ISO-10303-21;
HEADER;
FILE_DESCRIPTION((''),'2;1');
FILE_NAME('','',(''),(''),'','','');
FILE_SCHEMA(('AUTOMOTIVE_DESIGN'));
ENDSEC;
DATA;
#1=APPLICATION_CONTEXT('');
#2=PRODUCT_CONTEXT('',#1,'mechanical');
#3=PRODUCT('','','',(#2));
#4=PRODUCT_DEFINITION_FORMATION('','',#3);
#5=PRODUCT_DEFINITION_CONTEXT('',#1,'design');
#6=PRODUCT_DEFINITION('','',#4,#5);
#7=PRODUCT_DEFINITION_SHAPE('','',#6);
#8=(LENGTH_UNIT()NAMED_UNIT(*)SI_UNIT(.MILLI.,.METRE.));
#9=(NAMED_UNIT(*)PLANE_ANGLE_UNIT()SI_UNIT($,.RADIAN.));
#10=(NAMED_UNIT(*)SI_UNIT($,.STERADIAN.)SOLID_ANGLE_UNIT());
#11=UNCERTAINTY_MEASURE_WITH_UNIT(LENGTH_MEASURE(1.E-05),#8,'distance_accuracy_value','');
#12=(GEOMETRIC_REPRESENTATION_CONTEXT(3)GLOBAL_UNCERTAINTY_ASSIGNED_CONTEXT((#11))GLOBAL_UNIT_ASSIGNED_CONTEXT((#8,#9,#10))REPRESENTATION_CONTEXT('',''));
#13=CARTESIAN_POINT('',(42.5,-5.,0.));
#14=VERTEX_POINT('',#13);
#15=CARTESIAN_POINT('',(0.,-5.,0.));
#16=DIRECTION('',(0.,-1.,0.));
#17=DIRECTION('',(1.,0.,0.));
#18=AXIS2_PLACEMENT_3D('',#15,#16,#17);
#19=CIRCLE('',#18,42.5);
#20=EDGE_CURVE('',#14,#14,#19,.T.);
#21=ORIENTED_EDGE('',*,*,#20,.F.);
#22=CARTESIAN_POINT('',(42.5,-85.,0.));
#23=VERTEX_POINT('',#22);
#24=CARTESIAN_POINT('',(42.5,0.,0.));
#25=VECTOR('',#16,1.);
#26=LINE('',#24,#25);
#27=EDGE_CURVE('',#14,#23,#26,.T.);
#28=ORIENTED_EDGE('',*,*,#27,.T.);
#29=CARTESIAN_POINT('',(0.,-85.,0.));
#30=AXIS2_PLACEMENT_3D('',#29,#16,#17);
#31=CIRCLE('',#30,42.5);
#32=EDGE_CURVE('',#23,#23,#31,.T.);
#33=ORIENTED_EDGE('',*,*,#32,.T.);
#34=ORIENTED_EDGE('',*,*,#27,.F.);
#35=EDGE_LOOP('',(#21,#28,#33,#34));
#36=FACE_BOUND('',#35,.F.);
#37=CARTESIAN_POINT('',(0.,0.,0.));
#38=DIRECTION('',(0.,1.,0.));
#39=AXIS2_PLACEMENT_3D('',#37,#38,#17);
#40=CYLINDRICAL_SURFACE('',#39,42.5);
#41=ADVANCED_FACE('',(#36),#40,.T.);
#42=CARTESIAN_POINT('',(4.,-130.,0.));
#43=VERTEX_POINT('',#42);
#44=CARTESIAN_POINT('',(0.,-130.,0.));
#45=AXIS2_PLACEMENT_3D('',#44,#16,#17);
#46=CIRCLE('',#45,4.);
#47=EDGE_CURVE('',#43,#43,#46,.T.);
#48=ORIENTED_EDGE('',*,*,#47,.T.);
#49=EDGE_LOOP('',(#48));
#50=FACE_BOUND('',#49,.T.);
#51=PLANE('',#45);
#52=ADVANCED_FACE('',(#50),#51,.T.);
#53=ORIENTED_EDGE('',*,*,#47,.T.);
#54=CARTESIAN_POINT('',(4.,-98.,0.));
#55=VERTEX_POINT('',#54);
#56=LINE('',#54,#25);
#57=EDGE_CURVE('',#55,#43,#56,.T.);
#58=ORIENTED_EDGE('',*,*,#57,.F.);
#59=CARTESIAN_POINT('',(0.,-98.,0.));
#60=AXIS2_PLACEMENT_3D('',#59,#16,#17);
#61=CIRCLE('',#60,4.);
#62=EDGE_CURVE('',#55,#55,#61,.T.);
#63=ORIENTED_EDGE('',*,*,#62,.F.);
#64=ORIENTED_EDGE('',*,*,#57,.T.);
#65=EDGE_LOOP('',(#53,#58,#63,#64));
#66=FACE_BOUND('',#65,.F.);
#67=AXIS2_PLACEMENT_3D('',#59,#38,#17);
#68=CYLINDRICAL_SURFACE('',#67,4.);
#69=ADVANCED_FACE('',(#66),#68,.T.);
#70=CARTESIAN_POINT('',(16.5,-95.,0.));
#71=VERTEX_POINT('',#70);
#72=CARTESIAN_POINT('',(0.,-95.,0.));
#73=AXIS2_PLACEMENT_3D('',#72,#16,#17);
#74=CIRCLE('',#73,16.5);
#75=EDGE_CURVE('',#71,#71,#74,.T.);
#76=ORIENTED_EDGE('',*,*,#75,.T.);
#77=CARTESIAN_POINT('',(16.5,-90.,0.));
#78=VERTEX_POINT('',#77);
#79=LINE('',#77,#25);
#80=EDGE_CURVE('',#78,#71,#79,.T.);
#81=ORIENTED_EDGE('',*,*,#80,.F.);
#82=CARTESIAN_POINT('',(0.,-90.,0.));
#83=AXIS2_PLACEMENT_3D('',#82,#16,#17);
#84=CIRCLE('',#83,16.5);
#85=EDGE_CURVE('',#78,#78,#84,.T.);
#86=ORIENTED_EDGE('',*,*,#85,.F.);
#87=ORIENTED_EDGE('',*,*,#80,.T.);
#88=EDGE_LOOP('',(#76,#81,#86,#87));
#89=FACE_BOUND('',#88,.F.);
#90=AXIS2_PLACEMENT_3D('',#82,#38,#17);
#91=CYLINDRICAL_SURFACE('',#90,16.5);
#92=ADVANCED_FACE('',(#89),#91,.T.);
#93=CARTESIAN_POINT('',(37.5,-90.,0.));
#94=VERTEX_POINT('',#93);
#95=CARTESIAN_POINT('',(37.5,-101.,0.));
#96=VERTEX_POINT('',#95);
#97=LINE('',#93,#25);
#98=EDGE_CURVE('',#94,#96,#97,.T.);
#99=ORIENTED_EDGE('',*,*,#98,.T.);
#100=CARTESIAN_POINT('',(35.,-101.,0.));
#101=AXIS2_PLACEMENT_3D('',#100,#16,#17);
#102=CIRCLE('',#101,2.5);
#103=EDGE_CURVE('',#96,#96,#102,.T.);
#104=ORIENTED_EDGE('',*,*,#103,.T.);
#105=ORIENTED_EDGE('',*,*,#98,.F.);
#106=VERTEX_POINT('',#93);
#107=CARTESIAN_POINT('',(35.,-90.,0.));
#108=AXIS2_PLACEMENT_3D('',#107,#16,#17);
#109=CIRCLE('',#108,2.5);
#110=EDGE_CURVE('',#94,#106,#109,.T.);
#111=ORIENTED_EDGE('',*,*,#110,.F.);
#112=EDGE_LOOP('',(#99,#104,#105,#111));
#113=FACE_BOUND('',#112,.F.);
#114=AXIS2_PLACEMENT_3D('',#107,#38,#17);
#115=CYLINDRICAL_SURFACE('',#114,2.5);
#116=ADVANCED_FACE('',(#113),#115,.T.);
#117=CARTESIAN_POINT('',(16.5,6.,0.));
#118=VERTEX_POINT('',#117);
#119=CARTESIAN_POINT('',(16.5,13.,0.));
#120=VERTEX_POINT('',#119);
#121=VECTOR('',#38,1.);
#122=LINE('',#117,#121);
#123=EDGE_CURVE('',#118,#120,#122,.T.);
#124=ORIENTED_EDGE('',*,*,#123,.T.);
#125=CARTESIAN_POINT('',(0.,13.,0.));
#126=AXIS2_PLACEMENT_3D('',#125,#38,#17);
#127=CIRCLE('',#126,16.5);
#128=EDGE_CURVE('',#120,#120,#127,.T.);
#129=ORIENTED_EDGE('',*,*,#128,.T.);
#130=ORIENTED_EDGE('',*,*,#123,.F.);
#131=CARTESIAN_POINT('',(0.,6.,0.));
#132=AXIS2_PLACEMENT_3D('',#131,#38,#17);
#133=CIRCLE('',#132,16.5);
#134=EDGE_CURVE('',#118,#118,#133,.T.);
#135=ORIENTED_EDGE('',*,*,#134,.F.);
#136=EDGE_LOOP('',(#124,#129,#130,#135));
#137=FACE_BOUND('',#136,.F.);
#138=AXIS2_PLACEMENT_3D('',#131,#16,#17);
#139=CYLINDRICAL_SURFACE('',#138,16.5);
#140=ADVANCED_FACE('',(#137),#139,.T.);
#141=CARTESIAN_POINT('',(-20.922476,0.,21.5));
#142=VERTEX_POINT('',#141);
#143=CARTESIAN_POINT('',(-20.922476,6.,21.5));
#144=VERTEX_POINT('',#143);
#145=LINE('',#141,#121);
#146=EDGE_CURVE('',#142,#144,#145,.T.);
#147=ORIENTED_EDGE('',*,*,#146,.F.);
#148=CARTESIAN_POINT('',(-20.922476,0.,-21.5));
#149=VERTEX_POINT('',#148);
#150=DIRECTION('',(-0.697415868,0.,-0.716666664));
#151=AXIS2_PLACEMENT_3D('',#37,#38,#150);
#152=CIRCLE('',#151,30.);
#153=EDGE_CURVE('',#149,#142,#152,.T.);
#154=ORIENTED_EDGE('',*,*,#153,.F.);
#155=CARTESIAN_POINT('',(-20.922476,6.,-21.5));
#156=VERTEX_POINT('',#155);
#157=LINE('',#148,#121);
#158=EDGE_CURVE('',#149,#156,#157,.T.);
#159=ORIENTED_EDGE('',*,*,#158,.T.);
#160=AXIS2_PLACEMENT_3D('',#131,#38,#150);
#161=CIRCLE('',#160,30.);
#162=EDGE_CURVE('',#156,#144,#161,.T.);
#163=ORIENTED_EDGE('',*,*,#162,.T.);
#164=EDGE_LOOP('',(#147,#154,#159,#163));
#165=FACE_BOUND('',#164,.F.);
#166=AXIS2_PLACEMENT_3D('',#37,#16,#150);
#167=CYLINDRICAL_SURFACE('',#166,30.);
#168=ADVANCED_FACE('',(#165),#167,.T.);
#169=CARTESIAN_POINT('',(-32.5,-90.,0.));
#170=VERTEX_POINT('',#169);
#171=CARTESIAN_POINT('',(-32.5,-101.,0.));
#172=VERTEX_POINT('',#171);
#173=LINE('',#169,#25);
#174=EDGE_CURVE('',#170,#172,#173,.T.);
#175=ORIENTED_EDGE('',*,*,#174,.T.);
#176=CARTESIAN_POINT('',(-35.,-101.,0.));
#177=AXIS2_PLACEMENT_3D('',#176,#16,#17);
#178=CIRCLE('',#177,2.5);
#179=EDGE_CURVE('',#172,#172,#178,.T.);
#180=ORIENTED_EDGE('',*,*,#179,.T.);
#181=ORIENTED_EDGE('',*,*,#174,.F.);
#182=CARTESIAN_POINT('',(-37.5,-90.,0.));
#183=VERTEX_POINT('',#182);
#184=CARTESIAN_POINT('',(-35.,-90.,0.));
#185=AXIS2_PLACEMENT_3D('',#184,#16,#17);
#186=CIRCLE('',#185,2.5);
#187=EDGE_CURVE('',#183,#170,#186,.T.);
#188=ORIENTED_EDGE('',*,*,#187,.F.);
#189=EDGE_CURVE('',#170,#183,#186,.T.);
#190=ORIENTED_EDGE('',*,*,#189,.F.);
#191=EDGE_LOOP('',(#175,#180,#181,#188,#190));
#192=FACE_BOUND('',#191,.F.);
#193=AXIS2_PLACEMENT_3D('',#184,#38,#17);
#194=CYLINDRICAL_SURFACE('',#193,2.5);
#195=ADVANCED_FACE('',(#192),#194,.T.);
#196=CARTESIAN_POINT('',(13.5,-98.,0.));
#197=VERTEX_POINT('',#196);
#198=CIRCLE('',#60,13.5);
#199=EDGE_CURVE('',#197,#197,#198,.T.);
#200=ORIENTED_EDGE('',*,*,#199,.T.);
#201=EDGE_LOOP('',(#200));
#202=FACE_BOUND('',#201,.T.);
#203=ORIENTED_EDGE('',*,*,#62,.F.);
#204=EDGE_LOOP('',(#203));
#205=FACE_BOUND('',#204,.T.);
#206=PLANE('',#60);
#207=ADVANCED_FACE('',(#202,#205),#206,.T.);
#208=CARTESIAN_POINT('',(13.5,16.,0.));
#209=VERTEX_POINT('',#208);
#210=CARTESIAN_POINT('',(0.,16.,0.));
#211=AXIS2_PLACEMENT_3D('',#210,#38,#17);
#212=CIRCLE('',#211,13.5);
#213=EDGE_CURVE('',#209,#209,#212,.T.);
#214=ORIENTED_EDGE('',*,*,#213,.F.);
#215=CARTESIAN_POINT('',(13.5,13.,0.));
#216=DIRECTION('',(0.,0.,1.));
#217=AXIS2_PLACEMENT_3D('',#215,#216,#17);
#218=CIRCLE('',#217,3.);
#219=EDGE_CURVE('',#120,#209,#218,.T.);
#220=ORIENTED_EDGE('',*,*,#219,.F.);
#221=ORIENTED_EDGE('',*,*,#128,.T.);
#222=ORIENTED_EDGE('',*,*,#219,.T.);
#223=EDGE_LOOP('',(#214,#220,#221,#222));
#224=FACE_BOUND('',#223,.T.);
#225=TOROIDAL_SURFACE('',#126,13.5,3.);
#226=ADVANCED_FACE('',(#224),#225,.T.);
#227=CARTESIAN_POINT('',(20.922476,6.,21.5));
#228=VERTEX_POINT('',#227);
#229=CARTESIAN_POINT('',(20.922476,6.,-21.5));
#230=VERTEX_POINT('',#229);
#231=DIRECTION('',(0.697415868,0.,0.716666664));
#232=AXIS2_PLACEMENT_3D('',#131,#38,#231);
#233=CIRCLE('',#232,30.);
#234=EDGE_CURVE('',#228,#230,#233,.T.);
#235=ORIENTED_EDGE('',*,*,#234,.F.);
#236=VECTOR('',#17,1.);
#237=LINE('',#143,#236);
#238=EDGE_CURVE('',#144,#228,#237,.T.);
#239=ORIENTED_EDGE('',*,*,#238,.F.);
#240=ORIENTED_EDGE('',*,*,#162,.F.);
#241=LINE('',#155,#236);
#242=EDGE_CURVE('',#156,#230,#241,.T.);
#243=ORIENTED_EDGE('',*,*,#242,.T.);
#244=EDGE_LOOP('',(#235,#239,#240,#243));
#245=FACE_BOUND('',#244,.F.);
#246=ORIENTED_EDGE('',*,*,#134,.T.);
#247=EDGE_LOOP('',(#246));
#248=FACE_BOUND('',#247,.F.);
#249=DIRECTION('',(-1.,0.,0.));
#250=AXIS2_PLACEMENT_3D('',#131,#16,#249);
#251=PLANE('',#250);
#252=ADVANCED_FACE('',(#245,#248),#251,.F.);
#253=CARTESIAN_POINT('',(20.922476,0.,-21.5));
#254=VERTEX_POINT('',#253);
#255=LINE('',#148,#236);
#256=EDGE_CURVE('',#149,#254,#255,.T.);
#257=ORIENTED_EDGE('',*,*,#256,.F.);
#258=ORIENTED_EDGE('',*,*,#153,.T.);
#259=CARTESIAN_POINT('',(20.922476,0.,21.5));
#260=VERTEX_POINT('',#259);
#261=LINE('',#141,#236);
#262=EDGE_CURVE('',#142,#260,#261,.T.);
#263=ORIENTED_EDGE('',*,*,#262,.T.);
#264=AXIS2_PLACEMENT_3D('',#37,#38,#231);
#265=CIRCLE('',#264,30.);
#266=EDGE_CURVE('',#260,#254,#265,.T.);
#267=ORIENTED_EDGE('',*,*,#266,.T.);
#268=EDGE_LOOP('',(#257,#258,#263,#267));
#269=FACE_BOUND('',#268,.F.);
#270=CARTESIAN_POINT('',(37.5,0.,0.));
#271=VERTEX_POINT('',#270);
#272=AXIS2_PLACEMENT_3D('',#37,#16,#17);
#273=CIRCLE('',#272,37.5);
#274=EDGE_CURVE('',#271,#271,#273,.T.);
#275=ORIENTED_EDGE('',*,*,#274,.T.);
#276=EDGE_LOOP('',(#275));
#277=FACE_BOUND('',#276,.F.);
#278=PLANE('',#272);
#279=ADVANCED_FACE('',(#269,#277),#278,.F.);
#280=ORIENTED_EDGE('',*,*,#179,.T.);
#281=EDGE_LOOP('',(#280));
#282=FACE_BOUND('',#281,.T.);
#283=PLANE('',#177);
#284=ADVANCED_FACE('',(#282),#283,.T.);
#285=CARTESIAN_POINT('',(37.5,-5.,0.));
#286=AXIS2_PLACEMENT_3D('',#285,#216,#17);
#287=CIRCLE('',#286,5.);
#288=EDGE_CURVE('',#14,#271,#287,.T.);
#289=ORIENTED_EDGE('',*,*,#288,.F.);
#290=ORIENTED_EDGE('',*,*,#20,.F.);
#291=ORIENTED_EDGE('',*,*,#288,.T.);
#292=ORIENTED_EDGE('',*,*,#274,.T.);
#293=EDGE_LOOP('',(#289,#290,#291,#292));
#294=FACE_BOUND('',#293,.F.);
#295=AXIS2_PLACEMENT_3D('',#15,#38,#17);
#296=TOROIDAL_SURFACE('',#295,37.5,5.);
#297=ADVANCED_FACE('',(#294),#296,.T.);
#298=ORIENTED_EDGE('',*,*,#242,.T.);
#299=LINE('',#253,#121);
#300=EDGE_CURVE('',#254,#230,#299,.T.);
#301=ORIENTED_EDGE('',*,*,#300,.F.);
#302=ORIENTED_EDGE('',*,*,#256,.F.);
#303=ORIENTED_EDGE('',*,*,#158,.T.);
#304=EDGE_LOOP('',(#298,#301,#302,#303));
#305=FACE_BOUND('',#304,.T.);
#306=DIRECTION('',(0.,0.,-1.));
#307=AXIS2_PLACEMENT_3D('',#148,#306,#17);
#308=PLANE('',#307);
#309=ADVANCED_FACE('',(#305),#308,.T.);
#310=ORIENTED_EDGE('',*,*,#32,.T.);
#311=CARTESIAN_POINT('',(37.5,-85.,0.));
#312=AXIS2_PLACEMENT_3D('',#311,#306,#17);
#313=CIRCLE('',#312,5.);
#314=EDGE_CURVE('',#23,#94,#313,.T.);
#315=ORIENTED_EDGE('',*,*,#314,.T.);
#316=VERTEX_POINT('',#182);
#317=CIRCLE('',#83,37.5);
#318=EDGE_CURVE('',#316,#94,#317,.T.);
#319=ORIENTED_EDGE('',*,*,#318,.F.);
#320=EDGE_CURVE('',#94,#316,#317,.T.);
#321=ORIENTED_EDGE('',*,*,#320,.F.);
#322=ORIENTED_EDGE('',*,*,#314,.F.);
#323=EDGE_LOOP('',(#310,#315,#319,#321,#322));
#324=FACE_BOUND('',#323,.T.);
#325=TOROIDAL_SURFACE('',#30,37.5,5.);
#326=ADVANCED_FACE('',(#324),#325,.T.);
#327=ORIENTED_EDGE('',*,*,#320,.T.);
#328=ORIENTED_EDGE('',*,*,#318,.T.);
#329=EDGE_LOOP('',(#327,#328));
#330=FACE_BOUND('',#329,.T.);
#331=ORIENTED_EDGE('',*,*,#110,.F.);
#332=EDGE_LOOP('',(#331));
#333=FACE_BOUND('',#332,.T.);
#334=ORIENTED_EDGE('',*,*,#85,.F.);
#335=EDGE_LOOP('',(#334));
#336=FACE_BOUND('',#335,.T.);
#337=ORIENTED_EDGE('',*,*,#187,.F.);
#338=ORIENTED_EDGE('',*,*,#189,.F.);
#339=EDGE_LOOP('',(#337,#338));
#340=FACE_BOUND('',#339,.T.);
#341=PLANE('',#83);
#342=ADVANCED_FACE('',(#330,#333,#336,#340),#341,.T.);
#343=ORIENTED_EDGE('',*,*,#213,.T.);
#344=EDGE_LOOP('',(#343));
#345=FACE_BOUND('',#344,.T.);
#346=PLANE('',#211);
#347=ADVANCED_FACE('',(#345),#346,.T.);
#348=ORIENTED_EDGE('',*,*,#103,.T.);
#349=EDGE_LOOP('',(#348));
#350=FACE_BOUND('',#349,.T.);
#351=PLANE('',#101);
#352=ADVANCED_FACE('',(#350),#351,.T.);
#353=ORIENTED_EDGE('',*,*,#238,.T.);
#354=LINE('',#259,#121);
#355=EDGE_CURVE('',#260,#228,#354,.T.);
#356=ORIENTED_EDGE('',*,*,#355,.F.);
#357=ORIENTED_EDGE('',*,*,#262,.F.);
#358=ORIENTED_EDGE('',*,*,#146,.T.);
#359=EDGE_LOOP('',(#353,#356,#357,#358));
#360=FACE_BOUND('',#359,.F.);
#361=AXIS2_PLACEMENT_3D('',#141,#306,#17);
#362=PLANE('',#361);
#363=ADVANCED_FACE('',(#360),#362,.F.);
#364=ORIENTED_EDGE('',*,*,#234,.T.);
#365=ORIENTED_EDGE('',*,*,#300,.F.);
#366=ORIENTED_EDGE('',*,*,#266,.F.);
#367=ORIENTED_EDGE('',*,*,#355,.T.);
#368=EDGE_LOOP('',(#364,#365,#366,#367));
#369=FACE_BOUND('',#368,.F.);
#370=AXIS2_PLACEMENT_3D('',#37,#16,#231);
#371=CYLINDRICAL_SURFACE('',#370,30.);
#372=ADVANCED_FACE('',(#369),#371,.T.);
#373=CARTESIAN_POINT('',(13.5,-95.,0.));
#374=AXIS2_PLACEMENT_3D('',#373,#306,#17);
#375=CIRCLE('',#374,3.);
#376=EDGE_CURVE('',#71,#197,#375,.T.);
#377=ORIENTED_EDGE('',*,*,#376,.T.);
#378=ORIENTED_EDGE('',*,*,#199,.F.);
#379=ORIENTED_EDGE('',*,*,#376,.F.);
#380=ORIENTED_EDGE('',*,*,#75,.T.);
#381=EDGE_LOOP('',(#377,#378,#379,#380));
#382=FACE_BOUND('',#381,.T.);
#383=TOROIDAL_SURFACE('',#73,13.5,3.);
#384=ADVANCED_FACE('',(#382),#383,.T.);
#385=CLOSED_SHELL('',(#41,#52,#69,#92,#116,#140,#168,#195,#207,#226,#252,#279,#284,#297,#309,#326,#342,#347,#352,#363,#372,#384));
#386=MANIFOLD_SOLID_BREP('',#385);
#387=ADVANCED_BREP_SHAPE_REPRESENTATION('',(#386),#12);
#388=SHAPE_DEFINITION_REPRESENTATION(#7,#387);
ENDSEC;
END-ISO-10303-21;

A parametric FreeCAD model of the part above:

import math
import FreeCAD as App
import Part
import Sketcher

V = App.Vector


def edges_at(feature, points):
    """Names of the edges that pass closest to the given points."""
    edges = feature.Shape.Edges
    near = lambda p: min(range(len(edges)), key=lambda i: edges[i].distToShape(Part.Vertex(*p))[0])
    return sorted({f"Edge{near(p) + 1}" for p in points})

doc = App.newDocument("Part")
params = doc.addObject("Spreadsheet::Sheet", "Params")
for row, (alias, value) in enumerate([
    ("sketch1_diameter", "85 mm"),
    ("pad1_length", "90 mm"),
    ("fillet_radius", "5 mm"),
    ("fillet2_radius", "5 mm"),
    ("sketch2_diameter", "33 mm"),
    ("pad2_length", "8 mm"),
    ("fillet3_radius", "3 mm"),
    ("sketch3_diameter", "8 mm"),
    ("pad3_length", "32 mm"),
    ("sketch4_radius", "30 mm"),
    ("pad4_length", "6 mm"),
    ("sketch5_diameter", "33 mm"),
    ("pad5_length", "10 mm"),
    ("fillet4_radius", "3 mm"),
    ("sketch6_diameter", "5 mm"),
    ("pad6_length", "11 mm"),
], start=1):
    params.set(f"A{row}", alias)
    params.set(f"B{row}", "=" + value)
    params.setAlias(f"B{row}", alias)

body = doc.addObject("PartDesign::Body", "Body")

sketch1 = body.newObject("Sketcher::SketchObject", "Sketch")
sketch1.AttachmentSupport = (doc.getObject("XZ_Plane"), [""])
sketch1.MapMode = "FlatFace"
sketch1.addGeometry(Part.Circle(V(0, 0, 0), V(0, 0, 1), 42), False)
sketch1.addConstraint(Sketcher.Constraint("Coincident", 0, 3, -1, 1))
sketch1.addConstraint(Sketcher.Constraint("Diameter", 0, 85.0))
sketch1.setExpression("Constraints[1]", "Params.sketch1_diameter")
pad1 = body.newObject("PartDesign::Pad", "Pad")
pad1.Profile = sketch1
pad1.setExpression("Length", "Params.pad1_length")
doc.recompute()

fillet = body.newObject("PartDesign::Fillet", "Fillet")
fillet.Base = (pad1, edges_at(pad1, [(-42.5, -90, 0)]))
fillet.setExpression("Radius", "Params.fillet_radius")
doc.recompute()

fillet2 = body.newObject("PartDesign::Fillet", "Fillet001")
fillet2.Base = (fillet, edges_at(fillet, [(-42.5, 0, 0)]))
fillet2.setExpression("Radius", "Params.fillet2_radius")

sketch2 = body.newObject("Sketcher::SketchObject", "Sketch001")
sketch2.AttachmentSupport = (doc.getObject("XZ_Plane"), [""])
sketch2.MapMode = "FlatFace"
sketch2.AttachmentOffset = App.Placement(V(0, 0, 90), App.Rotation())
sketch2.addGeometry(Part.Circle(V(0, 0, 0), V(0, 0, 1), 16), False)
sketch2.addConstraint(Sketcher.Constraint("Coincident", 0, 3, -1, 1))
sketch2.addConstraint(Sketcher.Constraint("Diameter", 0, 33.0))
sketch2.setExpression("Constraints[1]", "Params.sketch2_diameter")
pad2 = body.newObject("PartDesign::Pad", "Pad001")
pad2.Profile = sketch2
pad2.setExpression("Length", "Params.pad2_length")
doc.recompute()

fillet3 = body.newObject("PartDesign::Fillet", "Fillet002")
fillet3.Base = (pad2, edges_at(pad2, [(-16.5, -98, 0)]))
fillet3.setExpression("Radius", "Params.fillet3_radius")

sketch3 = body.newObject("Sketcher::SketchObject", "Sketch002")
sketch3.AttachmentSupport = (doc.getObject("XZ_Plane"), [""])
sketch3.MapMode = "FlatFace"
sketch3.AttachmentOffset = App.Placement(V(0, 0, 98), App.Rotation())
sketch3.addGeometry(Part.Circle(V(0, 0, 0), V(0, 0, 1), 4), False)
sketch3.addConstraint(Sketcher.Constraint("Coincident", 0, 3, -1, 1))
sketch3.addConstraint(Sketcher.Constraint("Diameter", 0, 8.0))
sketch3.setExpression("Constraints[1]", "Params.sketch3_diameter")
pad3 = body.newObject("PartDesign::Pad", "Pad002")
pad3.Profile = sketch3
pad3.setExpression("Length", "Params.pad3_length")

sketch4 = body.newObject("Sketcher::SketchObject", "Sketch003")
sketch4.AttachmentSupport = (doc.getObject("XZ_Plane"), [""])
sketch4.MapMode = "FlatFace"
sketch4.addGeometry(Part.LineSegment(V(21, -22, 0), V(-21, -22, 0)), False)
sketch4.addGeometry(Part.ArcOfCircle(Part.Circle(V(0, 0, 0), V(0, 0, 1), 30), math.radians(134), math.radians(226)), False)
sketch4.addGeometry(Part.LineSegment(V(-21, 22, 0), V(21, 22, 0)), False)
sketch4.addGeometry(Part.ArcOfCircle(Part.Circle(V(0, 0, 0), V(0, 0, 1), 30), math.radians(-46), math.radians(46)), False)
sketch4.addConstraint(Sketcher.Constraint("Coincident", 0, 2, 1, 2))
sketch4.addConstraint(Sketcher.Constraint("Coincident", 1, 1, 2, 1))
sketch4.addConstraint(Sketcher.Constraint("Coincident", 2, 2, 3, 2))
sketch4.addConstraint(Sketcher.Constraint("Coincident", 3, 1, 0, 1))
sketch4.addConstraint(Sketcher.Constraint("Horizontal", 0))
sketch4.addConstraint(Sketcher.Constraint("Horizontal", 2))
sketch4.addConstraint(Sketcher.Constraint("Coincident", 1, 3, -1, 1))
sketch4.addConstraint(Sketcher.Constraint("Coincident", 3, 3, -1, 1))
sketch4.addConstraint(Sketcher.Constraint("Equal", 1, 3))
sketch4.addConstraint(Sketcher.Constraint("Vertical", 0, 2, 1, 1))
sketch4.addConstraint(Sketcher.Constraint("Radius", 1, 30.0))
sketch4.addConstraint(Sketcher.Constraint("DistanceY", 0, 2, 1, 1, 43.0))
sketch4.setExpression("Constraints[10]", "Params.sketch4_radius")
pad4 = body.newObject("PartDesign::Pad", "Pad003")
pad4.Profile = sketch4
pad4.setExpression("Length", "Params.pad4_length")
pad4.Reversed = True

sketch5 = body.newObject("Sketcher::SketchObject", "Sketch004")
sketch5.AttachmentSupport = (doc.getObject("XZ_Plane"), [""])
sketch5.MapMode = "FlatFace"
sketch5.AttachmentOffset = App.Placement(V(0, 0, -6), App.Rotation())
sketch5.addGeometry(Part.Circle(V(0, 0, 0), V(0, 0, 1), 16), False)
sketch5.addConstraint(Sketcher.Constraint("Coincident", 0, 3, -1, 1))
sketch5.addConstraint(Sketcher.Constraint("Diameter", 0, 33.0))
sketch5.setExpression("Constraints[1]", "Params.sketch5_diameter")
pad5 = body.newObject("PartDesign::Pad", "Pad004")
pad5.Profile = sketch5
pad5.setExpression("Length", "Params.pad5_length")
pad5.Reversed = True
doc.recompute()

fillet4 = body.newObject("PartDesign::Fillet", "Fillet003")
fillet4.Base = (pad5, edges_at(pad5, [(-16.5, 16, 0)]))
fillet4.setExpression("Radius", "Params.fillet4_radius")

sketch6 = body.newObject("Sketcher::SketchObject", "Sketch005")
sketch6.AttachmentSupport = (doc.getObject("XZ_Plane"), [""])
sketch6.MapMode = "FlatFace"
sketch6.AttachmentOffset = App.Placement(V(0, 0, 90), App.Rotation())
sketch6.addGeometry(Part.Circle(V(-35, 0, 0), V(0, 0, 1), 2.5), False)
sketch6.addGeometry(Part.Circle(V(35, 0, 0), V(0, 0, 1), 2.5), False)
sketch6.addConstraint(Sketcher.Constraint("Equal", 0, 1))
sketch6.addConstraint(Sketcher.Constraint("Symmetric", 0, 3, 1, 3, -1, 1))
sketch6.addConstraint(Sketcher.Constraint("PointOnObject", 0, 3, -1))
sketch6.addConstraint(Sketcher.Constraint("Diameter", 0, 5.0))
sketch6.addConstraint(Sketcher.Constraint("DistanceX", 0, 3, -1, 1, 35.0))
sketch6.setExpression("Constraints[3]", "Params.sketch6_diameter")
pad6 = body.newObject("PartDesign::Pad", "Pad005")
pad6.Profile = sketch6
pad6.setExpression("Length", "Params.pad6_length")

doc.recompute()
